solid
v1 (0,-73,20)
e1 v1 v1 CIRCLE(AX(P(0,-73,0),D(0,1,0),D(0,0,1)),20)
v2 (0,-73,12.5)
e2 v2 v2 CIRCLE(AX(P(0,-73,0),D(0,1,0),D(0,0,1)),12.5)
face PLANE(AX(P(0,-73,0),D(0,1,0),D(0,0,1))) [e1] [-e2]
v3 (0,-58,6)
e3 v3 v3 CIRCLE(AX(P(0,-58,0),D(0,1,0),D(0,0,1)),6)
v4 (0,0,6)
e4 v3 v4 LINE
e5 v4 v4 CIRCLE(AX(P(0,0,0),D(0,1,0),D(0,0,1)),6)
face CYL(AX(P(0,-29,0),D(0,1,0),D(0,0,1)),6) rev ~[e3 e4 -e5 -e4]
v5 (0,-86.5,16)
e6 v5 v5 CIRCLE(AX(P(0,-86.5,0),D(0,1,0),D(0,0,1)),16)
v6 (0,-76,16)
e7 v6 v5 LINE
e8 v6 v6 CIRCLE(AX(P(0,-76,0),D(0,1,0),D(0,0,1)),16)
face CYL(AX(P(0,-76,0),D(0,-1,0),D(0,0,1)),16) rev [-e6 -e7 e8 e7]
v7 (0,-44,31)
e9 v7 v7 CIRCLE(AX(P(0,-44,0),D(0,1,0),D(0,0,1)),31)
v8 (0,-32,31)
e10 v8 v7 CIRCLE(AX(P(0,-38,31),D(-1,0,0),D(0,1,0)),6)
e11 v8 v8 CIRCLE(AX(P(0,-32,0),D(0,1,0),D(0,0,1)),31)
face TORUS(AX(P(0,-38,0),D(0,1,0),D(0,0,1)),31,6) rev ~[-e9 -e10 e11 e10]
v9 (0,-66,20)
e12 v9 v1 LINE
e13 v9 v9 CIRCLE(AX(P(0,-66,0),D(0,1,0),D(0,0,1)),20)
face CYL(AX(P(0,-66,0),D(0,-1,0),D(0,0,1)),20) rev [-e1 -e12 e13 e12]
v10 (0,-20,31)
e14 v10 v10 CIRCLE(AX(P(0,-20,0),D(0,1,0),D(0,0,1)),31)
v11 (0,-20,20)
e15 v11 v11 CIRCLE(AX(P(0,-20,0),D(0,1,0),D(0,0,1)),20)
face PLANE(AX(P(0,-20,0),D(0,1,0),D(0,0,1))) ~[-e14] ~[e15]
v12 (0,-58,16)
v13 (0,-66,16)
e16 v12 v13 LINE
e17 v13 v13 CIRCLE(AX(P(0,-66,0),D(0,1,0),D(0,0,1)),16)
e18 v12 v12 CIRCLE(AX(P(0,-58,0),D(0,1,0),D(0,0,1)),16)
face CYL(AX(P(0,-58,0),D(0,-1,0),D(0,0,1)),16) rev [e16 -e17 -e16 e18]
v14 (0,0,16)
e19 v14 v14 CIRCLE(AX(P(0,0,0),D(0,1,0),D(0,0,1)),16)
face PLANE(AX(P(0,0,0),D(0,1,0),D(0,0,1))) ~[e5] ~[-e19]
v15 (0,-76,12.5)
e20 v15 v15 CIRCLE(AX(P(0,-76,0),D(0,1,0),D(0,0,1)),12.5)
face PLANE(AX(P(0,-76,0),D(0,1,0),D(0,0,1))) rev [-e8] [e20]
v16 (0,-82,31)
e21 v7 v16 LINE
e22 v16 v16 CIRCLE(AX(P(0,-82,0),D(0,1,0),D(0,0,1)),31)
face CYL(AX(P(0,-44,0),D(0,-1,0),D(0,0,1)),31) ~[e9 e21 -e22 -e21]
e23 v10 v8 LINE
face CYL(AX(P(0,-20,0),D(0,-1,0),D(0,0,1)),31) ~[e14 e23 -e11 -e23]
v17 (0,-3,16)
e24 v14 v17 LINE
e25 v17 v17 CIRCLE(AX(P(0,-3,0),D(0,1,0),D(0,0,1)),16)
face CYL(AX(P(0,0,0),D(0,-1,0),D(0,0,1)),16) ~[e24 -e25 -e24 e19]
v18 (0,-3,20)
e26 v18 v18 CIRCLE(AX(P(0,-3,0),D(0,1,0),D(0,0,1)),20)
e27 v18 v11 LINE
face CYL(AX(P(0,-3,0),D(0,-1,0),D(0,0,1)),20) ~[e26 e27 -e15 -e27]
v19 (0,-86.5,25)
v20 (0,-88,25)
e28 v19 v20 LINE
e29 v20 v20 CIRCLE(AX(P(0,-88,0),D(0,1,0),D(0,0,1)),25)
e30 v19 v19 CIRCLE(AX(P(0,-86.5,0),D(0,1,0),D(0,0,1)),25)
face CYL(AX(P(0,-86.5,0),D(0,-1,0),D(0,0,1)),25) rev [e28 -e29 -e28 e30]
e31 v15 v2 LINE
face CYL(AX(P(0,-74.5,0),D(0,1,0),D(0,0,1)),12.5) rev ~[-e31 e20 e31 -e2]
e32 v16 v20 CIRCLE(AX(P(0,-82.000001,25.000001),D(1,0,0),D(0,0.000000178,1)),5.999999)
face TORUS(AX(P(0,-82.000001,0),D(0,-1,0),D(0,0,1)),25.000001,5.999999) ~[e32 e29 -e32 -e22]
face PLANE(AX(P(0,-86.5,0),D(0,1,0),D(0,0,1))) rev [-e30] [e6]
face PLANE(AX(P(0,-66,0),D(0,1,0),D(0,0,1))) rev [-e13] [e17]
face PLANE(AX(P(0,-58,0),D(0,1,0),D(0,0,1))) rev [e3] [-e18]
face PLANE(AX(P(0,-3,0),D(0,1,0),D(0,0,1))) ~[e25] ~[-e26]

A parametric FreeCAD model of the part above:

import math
import FreeCAD as App
import Part
import Sketcher

V = App.Vector


def add_polygon(sketch, points):
    """Adds a closed chain of lines whose ends are joined by coincident constraints."""
    first, n = sketch.GeometryCount, len(points)
    for a, b in zip(points, points[1:] + points[:1]):
        sketch.addGeometry(Part.LineSegment(App.Vector(*a, 0), App.Vector(*b, 0)), False)
    for i in range(n):
        sketch.addConstraint(Sketcher.Constraint("Coincident", first + i, 2, first + (i + 1) % n, 1))

doc = App.newDocument("Part")
params = doc.addObject("Spreadsheet::Sheet", "Params")
for row, (alias, value) in enumerate([
    ("sketch1_radius", "6 mm"),
    ("sketch1_width", "88 mm"),
    ("sketch1_width2", "3 mm"),
    ("sketch1_width3", "17 mm"),
    ("sketch1_width4", "12 mm"),
    ("revolution_angle", "360 deg"),
    ("sketch2_width", "88 mm"),
    ("sketch2_width2", "58 mm"),
    ("sketch2_width3", "8 mm"),
    ("sketch2_width4", "7 mm"),
    ("sketch2_width5", "3 mm"),
    ("groove_angle", "360 deg"),
], start=1):
    params.set(f"A{row}", alias)
    params.set(f"B{row}", "=" + value)
    params.setAlias(f"B{row}", alias)

body = doc.addObject("PartDesign::Body", "Body")

# Sketch on YZ plane
sketch1 = body.newObject("Sketcher::SketchObject", "Sketch")
sketch1.AttachmentSupport = (doc.getObject("YZ_Plane"), [""])
sketch1.MapMode = "FlatFace"
sketch1.addGeometry([
    Part.LineSegment(V(-88, 0, 0), V(0, 0, 0)),  # 0
    Part.LineSegment(V(0, 0, 0), V(0, 16, 0)),  # 1
    Part.LineSegment(V(0, 16, 0), V(-3, 16, 0)),  # 2
    Part.LineSegment(V(-3, 16, 0), V(-3, 20, 0)),  # 3
    Part.LineSegment(V(-3, 20, 0), V(-20, 20, 0)),  # 4
    Part.LineSegment(V(-20, 20, 0), V(-20, 31, 0)),  # 5
    Part.LineSegment(V(-20, 31, 0), V(-32, 31, 0)),  # 6
    Part.ArcOfCircle(Part.Circle(V(-38, 31, 0), V(0, 0, 1), 6), math.radians(180), math.radians(360)),  # 7
    Part.LineSegment(V(-44, 31, 0), V(-82, 31, 0)),  # 8
    Part.ArcOfCircle(Part.Circle(V(-82.000001, 25.000001, 0), V(0, 0, 1), 5.999999), math.radians(89.99999), math.radians(180.00001)),  # 9
    Part.LineSegment(V(-88, 25, 0), V(-88, 0, 0)),  # 10
], False)
sketch1.addConstraint([
    Sketcher.Constraint("Coincident", 0, 2, 1, 1),
    Sketcher.Constraint("Coincident", 1, 2, 2, 1),
    Sketcher.Constraint("Coincident", 2, 2, 3, 1),
    Sketcher.Constraint("Coincident", 3, 2, 4, 1),
    Sketcher.Constraint("Coincident", 4, 2, 5, 1),
    Sketcher.Constraint("Coincident", 5, 2, 6, 1),
    Sketcher.Constraint("Coincident", 6, 2, 7, 2),
    Sketcher.Constraint("Coincident", 7, 1, 8, 1),
    Sketcher.Constraint("Tangent", 8, 2, 9, 1),
    Sketcher.Constraint("Tangent", 9, 2, 10, 1),
    Sketcher.Constraint("Coincident", 10, 2, 0, 1),
    Sketcher.Constraint("Horizontal", 0),
    Sketcher.Constraint("Vertical", 1),
    Sketcher.Constraint("Horizontal", 2),
    Sketcher.Constraint("Vertical", 3),
    Sketcher.Constraint("Horizontal", 4),
    Sketcher.Constraint("Vertical", 5),
    Sketcher.Constraint("Horizontal", 6),
    Sketcher.Constraint("Horizontal", 8),
    Sketcher.Constraint("Vertical", 10),
    Sketcher.Constraint("Coincident", 0, 2, -1, 1),
    Sketcher.Constraint("Equal", 7, 9),
    Sketcher.Constraint("Horizontal", 7, 3, 5, 2),
    Sketcher.Constraint("Horizontal", 6, 2, 7, 1),
    Sketcher.Constraint("Radius", 7, 6.0),
    Sketcher.Constraint("DistanceX", 0, 1, 0, 2, 88.0),
    Sketcher.Constraint("DistanceX", 2, 2, 2, 1, 3.0),
    Sketcher.Constraint("DistanceX", 4, 2, 4, 1, 17.0),
    Sketcher.Constraint("DistanceX", 6, 2, 6, 1, 12.0),
    Sketcher.Constraint("DistanceY", 1, 1, 1, 2, 16.0),
    Sketcher.Constraint("DistanceY", 3, 1, 3, 2, 4.0),
    Sketcher.Constraint("DistanceY", 5, 1, 5, 2, 11.0),
])
sketch1.setExpression("Constraints[24]", "Params.sketch1_radius")
sketch1.setExpression("Constraints[25]", "Params.sketch1_width")
sketch1.setExpression("Constraints[26]", "Params.sketch1_width2")
sketch1.setExpression("Constraints[27]", "Params.sketch1_width3")
sketch1.setExpression("Constraints[28]", "Params.sketch1_width4")
revolution = body.newObject("PartDesign::Revolution", "Revolution")
revolution.Profile = sketch1
revolution.ReferenceAxis = (sketch1, ["H_Axis"])
revolution.setExpression("Angle", "Params.revolution_angle")

# Sketch on YZ plane
sketch2 = body.newObject("Sketcher::SketchObject", "Sketch001")
sketch2.AttachmentSupport = (doc.getObject("YZ_Plane"), [""])
sketch2.MapMode = "FlatFace"
add_polygon(sketch2, [(-88, 25), (-88, 0), (0, 0), (0, 6), (-58, 6), (-58, 16), (-66, 16), (-66, 20), (-73, 20), (-73, 12.5), (-76, 12.5), (-76, 16), (-86.5, 16), (-86.5, 25)])  # lines 0-13
sketch2.addConstraint([
    Sketcher.Constraint("Vertical", 0),
    Sketcher.Constraint("Horizontal", 1),
    Sketcher.Constraint("Vertical", 2),
    Sketcher.Constraint("Horizontal", 3),
    Sketcher.Constraint("Vertical", 4),
    Sketcher.Constraint("Horizontal", 5),
    Sketcher.Constraint("Vertical", 6),
    Sketcher.Constraint("Horizontal", 7),
    Sketcher.Constraint("Vertical", 8),
    Sketcher.Constraint("Horizontal", 9),
    Sketcher.Constraint("Vertical", 10),
    Sketcher.Constraint("Horizontal", 11),
    Sketcher.Constraint("Vertical", 12),
    Sketcher.Constraint("Horizontal", 13),
    Sketcher.Constraint("Coincident", 1, 2, -1, 1),
    Sketcher.Constraint("Horizontal", 5, 2, 10, 2),
    Sketcher.Constraint("DistanceX", 1, 1, 1, 2, 88.0),
    Sketcher.Constraint("DistanceX", 3, 2, 3, 1, 58.0),
    Sketcher.Constraint("DistanceX", 5, 2, 5, 1, 8.0),
    Sketcher.Constraint("DistanceX", 7, 2, 7, 1, 7.0),
    Sketcher.Constraint("DistanceX", 9, 2, 9, 1, 3.0),
    Sketcher.Constraint("DistanceY", 0, 2, 0, 1, 25.0),
    Sketcher.Constraint("DistanceY", 2, 1, 2, 2, 6.0),
    Sketcher.Constraint("DistanceY", 4, 1, 4, 2, 10.0),
    Sketcher.Constraint("DistanceY", 6, 1, 6, 2, 4.0),
    Sketcher.Constraint("DistanceX", 11, 2, 11, 1, 10.5),
    Sketcher.Constraint("DistanceY", 8, 2, 8, 1, 7.5),
])
sketch2.setExpression("Constraints[30]", "Params.sketch2_width")
sketch2.setExpression("Constraints[31]", "Params.sketch2_width2")
sketch2.setExpression("Constraints[32]", "Params.sketch2_width3")
sketch2.setExpression("Constraints[33]", "Params.sketch2_width4")
sketch2.setExpression("Constraints[34]", "Params.sketch2_width5")
groove = body.newObject("PartDesign::Groove", "Groove")
groove.Profile = sketch2
groove.ReferenceAxis = (sketch2, ["H_Axis"])
groove.setExpression("Angle", "Params.groove_angle")

doc.recompute()
